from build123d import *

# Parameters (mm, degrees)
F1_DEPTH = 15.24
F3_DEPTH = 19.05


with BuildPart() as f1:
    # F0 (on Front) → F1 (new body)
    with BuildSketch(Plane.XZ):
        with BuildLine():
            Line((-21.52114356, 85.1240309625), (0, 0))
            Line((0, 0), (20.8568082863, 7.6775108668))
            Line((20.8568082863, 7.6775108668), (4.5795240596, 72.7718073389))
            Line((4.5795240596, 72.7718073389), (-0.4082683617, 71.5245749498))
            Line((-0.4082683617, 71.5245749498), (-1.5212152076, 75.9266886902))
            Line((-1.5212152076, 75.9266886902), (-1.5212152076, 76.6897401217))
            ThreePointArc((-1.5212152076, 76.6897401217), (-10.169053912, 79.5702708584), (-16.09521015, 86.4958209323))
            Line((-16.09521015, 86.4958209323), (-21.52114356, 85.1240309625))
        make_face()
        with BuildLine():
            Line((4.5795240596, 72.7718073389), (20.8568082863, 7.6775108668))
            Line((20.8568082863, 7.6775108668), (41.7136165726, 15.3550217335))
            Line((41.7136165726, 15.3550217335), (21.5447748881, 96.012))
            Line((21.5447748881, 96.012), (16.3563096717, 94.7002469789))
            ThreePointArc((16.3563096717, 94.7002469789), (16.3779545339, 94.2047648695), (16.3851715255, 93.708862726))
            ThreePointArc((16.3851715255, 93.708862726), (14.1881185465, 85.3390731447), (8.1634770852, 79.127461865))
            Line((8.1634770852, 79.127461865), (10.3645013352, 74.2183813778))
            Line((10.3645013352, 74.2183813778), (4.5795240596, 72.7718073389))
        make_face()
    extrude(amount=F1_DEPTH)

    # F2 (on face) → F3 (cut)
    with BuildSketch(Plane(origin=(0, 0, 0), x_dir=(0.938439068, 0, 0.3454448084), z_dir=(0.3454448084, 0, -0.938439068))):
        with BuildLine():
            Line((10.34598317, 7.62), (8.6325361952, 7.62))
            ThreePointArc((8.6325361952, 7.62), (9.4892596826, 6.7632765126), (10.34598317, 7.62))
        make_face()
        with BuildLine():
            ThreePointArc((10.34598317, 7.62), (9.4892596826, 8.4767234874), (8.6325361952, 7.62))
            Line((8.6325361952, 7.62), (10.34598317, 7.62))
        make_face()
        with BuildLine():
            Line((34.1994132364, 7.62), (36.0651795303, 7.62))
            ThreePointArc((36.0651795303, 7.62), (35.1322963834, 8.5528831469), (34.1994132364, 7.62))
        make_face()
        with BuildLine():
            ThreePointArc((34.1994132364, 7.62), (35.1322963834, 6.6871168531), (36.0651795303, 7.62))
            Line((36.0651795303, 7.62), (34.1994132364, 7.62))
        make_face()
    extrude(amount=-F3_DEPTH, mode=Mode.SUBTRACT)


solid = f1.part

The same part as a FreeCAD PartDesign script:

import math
import FreeCAD as App
import Part
import Sketcher
Q = App.Units.Quantity

doc = App.newDocument("Part")
body = doc.addObject("PartDesign::Body", "Body")

# Sketch on XZ plane
sketch1 = body.newObject("Sketcher::SketchObject", "Sketch")
sketch1.AttachmentSupport = (doc.getObject("XZ_Plane"), [""])
sketch1.MapMode = "FlatFace"
sketch1.addGeometry(Part.LineSegment(App.Vector(-21.521144, 85.124031, 0), App.Vector(0, 0, 0)), False)
sketch1.addGeometry(Part.LineSegment(App.Vector(0, 0, 0), App.Vector(20.856808, 7.677511, 0)), False)
sketch1.addGeometry(Part.LineSegment(App.Vector(20.856808, 7.677511, 0), App.Vector(41.713617, 15.355022, 0)), False)
sketch1.addGeometry(Part.LineSegment(App.Vector(41.713617, 15.355022, 0), App.Vector(21.544775, 96.012, 0)), False)
sketch1.addGeometry(Part.LineSegment(App.Vector(21.544775, 96.012, 0), App.Vector(16.35631, 94.700247, 0)), False)
sketch1.addGeometry(Part.ArcOfCircle(Part.Circle(App.Vector(-0.655933, 93.708863, 0), App.Vector(0, 0, 1), 17.041105), math.radians(0), math.radians(3.335126)), False)
sketch1.addGeometry(Part.ArcOfCircle(Part.Circle(App.Vector(-0.655933, 93.708863, 0), App.Vector(0, 0, 1), 17.041105), math.radians(-58.832786), math.radians(0)), False)
sketch1.addGeometry(Part.LineSegment(App.Vector(8.163477, 79.127462, 0), App.Vector(10.364501, 74.218381, 0)), False)
sketch1.addGeometry(Part.LineSegment(App.Vector(10.364501, 74.218381, 0), App.Vector(4.579524, 72.771807, 0)), False)
sketch1.addGeometry(Part.LineSegment(App.Vector(4.579524, 72.771807, 0), App.Vector(-0.408268, 71.524575, 0)), False)
sketch1.addGeometry(Part.LineSegment(App.Vector(-0.408268, 71.524575, 0), App.Vector(-1.521215, 75.926689, 0)), False)
sketch1.addGeometry(Part.LineSegment(App.Vector(-1.521215, 75.926689, 0), App.Vector(-1.521215, 76.68974, 0)), False)
sketch1.addGeometry(Part.ArcOfCircle(Part.Circle(App.Vector(-0.655933, 93.708863, 0), App.Vector(0, 0, 1), 17.041105), math.radians(-154.958593), math.radians(-92.910512)), False)
sketch1.addGeometry(Part.LineSegment(App.Vector(-16.09521, 86.495821, 0), App.Vector(-21.521144, 85.124031, 0)), False)
sketch1.addConstraint(Sketcher.Constraint("Coincident", 0, 2, 1, 1))
sketch1.addConstraint(Sketcher.Constraint("Coincident", 1, 2, 2, 1))
sketch1.addConstraint(Sketcher.Constraint("Coincident", 2, 2, 3, 1))
sketch1.addConstraint(Sketcher.Constraint("Coincident", 3, 2, 4, 1))
sketch1.addConstraint(Sketcher.Constraint("Coincident", 4, 2, 5, 2))
sketch1.addConstraint(Sketcher.Constraint("Tangent", 5, 1, 6, 2))
sketch1.addConstraint(Sketcher.Constraint("Coincident", 6, 1, 7, 1))
sketch1.addConstraint(Sketcher.Constraint("Coincident", 7, 2, 8, 1))
sketch1.addConstraint(Sketcher.Constraint("Coincident", 8, 2, 9, 1))
sketch1.addConstraint(Sketcher.Constraint("Coincident", 9, 2, 10, 1))
sketch1.addConstraint(Sketcher.Constraint("Coincident", 10, 2, 11, 1))
sketch1.addConstraint(Sketcher.Constraint("Coincident", 11, 2, 12, 2))
sketch1.addConstraint(Sketcher.Constraint("Coincident", 12, 1, 13, 1))
sketch1.addConstraint(Sketcher.Constraint("Coincident", 13, 2, 0, 1))
sketch1.addConstraint(Sketcher.Constraint("Vertical", 11))
sketch1.addConstraint(Sketcher.Constraint("Coincident", 0, 2, -1, 1))
sketch1.addConstraint(Sketcher.Constraint("Coincident", 12, 3, 5, 3))
sketch1.addConstraint(Sketcher.Constraint("Equal", 5, 6))
sketch1.addConstraint(Sketcher.Constraint("Equal", 6, 12))
sketch1.addConstraint(Sketcher.Constraint("Parallel", 1, 2))
sketch1.addConstraint(Sketcher.Constraint("Perpendicular", 0, 4))
sketch1.addConstraint(Sketcher.Constraint("Perpendicular", 3, 8))
sketch1.addConstraint(Sketcher.Constraint("Parallel", 8, 9))
sketch1.addConstraint(Sketcher.Constraint("Perpendicular", 4, 10))
sketch1.addConstraint(Sketcher.Constraint("Perpendicular", 10, 13))
sketch1.addConstraint(Sketcher.Constraint("Horizontal", 12, 3, 5, 1))
sketch1.addConstraint(Sketcher.Constraint("Equal", 1, 2))
sketch1.addConstraint(Sketcher.Constraint("DistanceY", -1, 1, 3, 2, Q("3.78 in")))
sketch1.addConstraint(Sketcher.Constraint("Distance", 1, Q("0.875 in")))
sketch1.addConstraint(Sketcher.Constraint("Radius", 5, 17.041105))
sketch1.addConstraint(Sketcher.Constraint("DistanceY", 10, 2, 13, 2, Q("0.3621001 in")))
sketch1.addConstraint(Sketcher.Constraint("Distance", 8, 5.963098))
sketch1.addConstraint(Sketcher.Constraint("DistanceY", 11, 1, 11, 2, 0.763051))
sketch1.addConstraint(Sketcher.Constraint("DistanceX", -1, 1, 7, 2, 10.364501))
sketch1.addConstraint(Sketcher.Constraint("DistanceY", 6, 1, 5, 1, 14.581401))
sketch1.addConstraint(Sketcher.Constraint("DistanceX", -1, 1, 1, 2, 20.856808))
sketch1.addConstraint(Sketcher.Constraint("DistanceX", -1, 1, 4, 2, 16.35631))
sketch1.addConstraint(Sketcher.Constraint("DistanceX", -1, 1, 5, 1, 16.385172))
sketch1.addConstraint(Sketcher.Constraint("DistanceY", -1, 1, 6, 1, 79.127462))
sketch1.addConstraint(Sketcher.Constraint("DistanceY", -1, 1, 7, 2, 74.218381))
sketch1.addConstraint(Sketcher.Constraint("DistanceX", 9, 2, -1, 1, 0.408268))
sketch1.addConstraint(Sketcher.Constraint("DistanceY", -1, 1, 10, 2, 75.926689))
pad1 = body.newObject("PartDesign::Pad", "Pad")
pad1.Profile = sketch1
pad1.Length = Q("0.6 in")

# Sketch on an angled plane
sketch2 = body.newObject("Sketcher::SketchObject", "Sketch001")
sketch2.Placement = App.Placement(App.Vector(0, 0, 0), App.Rotation(App.Vector(0.938439068, 0, 0.345444808), App.Vector(0, -1, 0), App.Vector(0.345444808, 0, -0.938439068), "ZXY"))
sketch2.addGeometry(Part.Circle(App.Vector(9.48926, 7.62, 0), App.Vector(0, 0, 1), 0.856723), False)
sketch2.addGeometry(Part.ArcOfCircle(Part.Circle(App.Vector(35.132296, 7.62, 0), App.Vector(0, 0, 1), 0.932883), math.radians(0), math.radians(180)), False)
sketch2.addGeometry(Part.ArcOfCircle(Part.Circle(App.Vector(35.132296, 7.62, 0), App.Vector(0, 0, 1), 0.932883), math.radians(180), math.radians(360)), False)
sketch2.addConstraint(Sketcher.Constraint("Tangent", 1, 1, 2, 2))
sketch2.addConstraint(Sketcher.Constraint("Coincident", 2, 1, 1, 2))
sketch2.addConstraint(Sketcher.Constraint("Horizontal", 0, 3, 1, 3))
sketch2.addConstraint(Sketcher.Constraint("Horizontal", 2, 3, 1, 1))
sketch2.addConstraint(Sketcher.Constraint("Horizontal", 1, 1, 2, 1))
sketch2.addConstraint(Sketcher.Constraint("DistanceY", -1, 1, 0, 3, Q("0.3 in")))
sketch2.addConstraint(Sketcher.Constraint("Diameter", 0, 1.713447))
sketch2.addConstraint(Sketcher.Constraint("Radius", 1, 0.932883))
sketch2.addConstraint(Sketcher.Constraint("DistanceX", -1, 1, 0, 3, 9.48926))
sketch2.addConstraint(Sketcher.Constraint("DistanceX", -1, 1, 1, 1, 36.06518))
pocket1 = body.newObject("PartDesign::Pocket", "Pocket")
pocket1.Profile = sketch2
pocket1.Length = Q("0.75 in")

doc.recompute()
